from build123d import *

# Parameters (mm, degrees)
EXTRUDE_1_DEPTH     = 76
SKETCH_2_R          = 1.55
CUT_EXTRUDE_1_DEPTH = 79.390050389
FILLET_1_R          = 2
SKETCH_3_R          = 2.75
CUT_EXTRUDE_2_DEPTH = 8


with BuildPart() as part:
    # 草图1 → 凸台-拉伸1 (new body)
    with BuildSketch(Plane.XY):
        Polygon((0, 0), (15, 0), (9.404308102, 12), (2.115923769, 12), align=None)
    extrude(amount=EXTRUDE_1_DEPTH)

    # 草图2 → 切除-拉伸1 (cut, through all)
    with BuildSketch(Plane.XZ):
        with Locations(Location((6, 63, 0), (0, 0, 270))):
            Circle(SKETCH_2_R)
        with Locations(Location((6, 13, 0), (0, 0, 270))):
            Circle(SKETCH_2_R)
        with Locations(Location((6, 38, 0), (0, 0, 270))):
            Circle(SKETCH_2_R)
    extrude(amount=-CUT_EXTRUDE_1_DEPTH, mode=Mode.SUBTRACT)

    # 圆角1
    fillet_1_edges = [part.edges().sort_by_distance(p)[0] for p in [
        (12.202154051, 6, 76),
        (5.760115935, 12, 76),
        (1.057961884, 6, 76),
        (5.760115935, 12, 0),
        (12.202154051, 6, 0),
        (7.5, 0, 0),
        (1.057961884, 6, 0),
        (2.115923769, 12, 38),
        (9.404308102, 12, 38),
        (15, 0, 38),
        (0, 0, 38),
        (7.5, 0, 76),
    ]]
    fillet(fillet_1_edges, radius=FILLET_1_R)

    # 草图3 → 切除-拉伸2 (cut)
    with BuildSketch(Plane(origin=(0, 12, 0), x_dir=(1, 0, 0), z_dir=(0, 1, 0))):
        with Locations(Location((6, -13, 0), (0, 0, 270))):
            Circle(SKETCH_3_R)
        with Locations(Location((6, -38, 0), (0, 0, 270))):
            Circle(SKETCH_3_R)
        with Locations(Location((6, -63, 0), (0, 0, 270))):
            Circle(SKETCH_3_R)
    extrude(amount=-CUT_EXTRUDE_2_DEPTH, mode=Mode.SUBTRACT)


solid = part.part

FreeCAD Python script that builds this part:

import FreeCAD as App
import Part
import Sketcher

V = App.Vector
Q = App.Units.Quantity


def edges_at(feature, points):
    """Names of the edges that pass closest to the given points."""
    edges = feature.Shape.Edges
    near = lambda p: min(range(len(edges)), key=lambda i: edges[i].distToShape(Part.Vertex(*p))[0])
    return sorted({f"Edge{near(p) + 1}" for p in points})


def add_polygon(sketch, points):
    """Adds a closed chain of lines whose ends are joined by coincident constraints."""
    first, n = sketch.GeometryCount, len(points)
    for a, b in zip(points, points[1:] + points[:1]):
        sketch.addGeometry(Part.LineSegment(App.Vector(*a, 0), App.Vector(*b, 0)), False)
    for i in range(n):
        sketch.addConstraint(Sketcher.Constraint("Coincident", first + i, 2, first + (i + 1) % n, 1))

doc = App.newDocument("Part")
body = doc.addObject("PartDesign::Body", "Body")

sketch1 = body.newObject("Sketcher::SketchObject", "Sketch")
sketch1.AttachmentSupport = (doc.getObject("XY_Plane"), [""])
sketch1.MapMode = "FlatFace"
add_polygon(sketch1, [(0, 0), (15, 0), (9, 12), (2, 12)])
sketch1.addConstraint([
    Sketcher.Constraint("Horizontal", 0),
    Sketcher.Constraint("Horizontal", 2),
    Sketcher.Constraint("Coincident", 3, 2, -1, 1),
    Sketcher.Constraint("DistanceX", 0, 1, 0, 2, 15.0),
    Sketcher.Constraint("Angle", 1, Q("115 deg")),
    Sketcher.Constraint("Angle", 3, Q("-100 deg")),
    Sketcher.Constraint("DistanceY", -1, 1, 1, 2, 12.0),
])
pad1 = body.newObject("PartDesign::Pad", "Pad")
pad1.Profile = sketch1
pad1.Length = 76

sketch2 = body.newObject("Sketcher::SketchObject", "Sketch001")
sketch2.AttachmentSupport = (doc.getObject("XZ_Plane"), [""])
sketch2.MapMode = "FlatFace"
sketch2.addGeometry([
    Part.Circle(V(6, 63, 0), V(0, 0, 1), 1.6),
    Part.Circle(V(6, 13, 0), V(0, 0, 1), 1.6),
    Part.Circle(V(6, 38, 0), V(0, 0, 1), 1.6),
], False)
sketch2.addConstraint([
    Sketcher.Constraint("Equal", 0, 1),
    Sketcher.Constraint("Equal", 1, 2),
    Sketcher.Constraint("Vertical", 0, 3, 1, 3),
    Sketcher.Constraint("Vertical", 1, 3, 2, 3),
    Sketcher.Constraint("Diameter", 0, 3.1),
    Sketcher.Constraint("DistanceX", -1, 1, 0, 3, 6.0),
    Sketcher.Constraint("DistanceY", -1, 1, 0, 3, 63.0),
    Sketcher.Constraint("DistanceY", -1, 1, 1, 3, 13.0),
    Sketcher.Constraint("DistanceY", -1, 1, 2, 3, 38.0),
])
pocket1 = body.newObject("PartDesign::Pocket", "Pocket")
pocket1.Profile = sketch2
pocket1.Type = "ThroughAll"
doc.recompute()

fillet = body.newObject("PartDesign::Fillet", "Fillet")
fillet.Base = (pocket1, edges_at(pocket1, [
    (12.202, 6, 76),
    (5.76, 12, 76),
    (1.058, 6, 76),
    (5.76, 12, 0),
    (12.202, 6, 0),
    (7.5, 0, 0),
    (1.058, 6, 0),
    (2.116, 12, 38),
    (9.404, 12, 38),
    (15, 0, 38),
    (0, 0, 38),
    (7.5, 0, 76),
]))
fillet.Radius = 2

sketch3 = body.newObject("Sketcher::SketchObject", "Sketch002")
sketch3.AttachmentSupport = (doc.getObject("XZ_Plane"), [""])
sketch3.MapMode = "FlatFace"
sketch3.AttachmentOffset = App.Placement(V(0, 0, -12), App.Rotation())
sketch3.addGeometry([
    Part.Circle(V(6, 13, 0), V(0, 0, 1), 2.8),
    Part.Circle(V(6, 38, 0), V(0, 0, 1), 2.8),
    Part.Circle(V(6, 63, 0), V(0, 0, 1), 2.8),
], False)
sketch3.addConstraint([
    Sketcher.Constraint("Equal", 0, 1),
    Sketcher.Constraint("Equal", 1, 2),
    Sketcher.Constraint("Vertical", 0, 3, 1, 3),
    Sketcher.Constraint("Vertical", 1, 3, 2, 3),
    Sketcher.Constraint("Diameter", 0, 5.5),
    Sketcher.Constraint("DistanceX", -1, 1, 0, 3, 6.0),
    Sketcher.Constraint("DistanceY", -1, 1, 0, 3, 13.0),
    Sketcher.Constraint("DistanceY", -1, 1, 1, 3, 38.0),
    Sketcher.Constraint("DistanceY", -1, 1, 2, 3, 63.0),
])
pocket2 = body.newObject("PartDesign::Pocket", "Pocket001")
pocket2.Profile = sketch3
pocket2.Length = 8
pocket2.Reversed = True

doc.recompute()
